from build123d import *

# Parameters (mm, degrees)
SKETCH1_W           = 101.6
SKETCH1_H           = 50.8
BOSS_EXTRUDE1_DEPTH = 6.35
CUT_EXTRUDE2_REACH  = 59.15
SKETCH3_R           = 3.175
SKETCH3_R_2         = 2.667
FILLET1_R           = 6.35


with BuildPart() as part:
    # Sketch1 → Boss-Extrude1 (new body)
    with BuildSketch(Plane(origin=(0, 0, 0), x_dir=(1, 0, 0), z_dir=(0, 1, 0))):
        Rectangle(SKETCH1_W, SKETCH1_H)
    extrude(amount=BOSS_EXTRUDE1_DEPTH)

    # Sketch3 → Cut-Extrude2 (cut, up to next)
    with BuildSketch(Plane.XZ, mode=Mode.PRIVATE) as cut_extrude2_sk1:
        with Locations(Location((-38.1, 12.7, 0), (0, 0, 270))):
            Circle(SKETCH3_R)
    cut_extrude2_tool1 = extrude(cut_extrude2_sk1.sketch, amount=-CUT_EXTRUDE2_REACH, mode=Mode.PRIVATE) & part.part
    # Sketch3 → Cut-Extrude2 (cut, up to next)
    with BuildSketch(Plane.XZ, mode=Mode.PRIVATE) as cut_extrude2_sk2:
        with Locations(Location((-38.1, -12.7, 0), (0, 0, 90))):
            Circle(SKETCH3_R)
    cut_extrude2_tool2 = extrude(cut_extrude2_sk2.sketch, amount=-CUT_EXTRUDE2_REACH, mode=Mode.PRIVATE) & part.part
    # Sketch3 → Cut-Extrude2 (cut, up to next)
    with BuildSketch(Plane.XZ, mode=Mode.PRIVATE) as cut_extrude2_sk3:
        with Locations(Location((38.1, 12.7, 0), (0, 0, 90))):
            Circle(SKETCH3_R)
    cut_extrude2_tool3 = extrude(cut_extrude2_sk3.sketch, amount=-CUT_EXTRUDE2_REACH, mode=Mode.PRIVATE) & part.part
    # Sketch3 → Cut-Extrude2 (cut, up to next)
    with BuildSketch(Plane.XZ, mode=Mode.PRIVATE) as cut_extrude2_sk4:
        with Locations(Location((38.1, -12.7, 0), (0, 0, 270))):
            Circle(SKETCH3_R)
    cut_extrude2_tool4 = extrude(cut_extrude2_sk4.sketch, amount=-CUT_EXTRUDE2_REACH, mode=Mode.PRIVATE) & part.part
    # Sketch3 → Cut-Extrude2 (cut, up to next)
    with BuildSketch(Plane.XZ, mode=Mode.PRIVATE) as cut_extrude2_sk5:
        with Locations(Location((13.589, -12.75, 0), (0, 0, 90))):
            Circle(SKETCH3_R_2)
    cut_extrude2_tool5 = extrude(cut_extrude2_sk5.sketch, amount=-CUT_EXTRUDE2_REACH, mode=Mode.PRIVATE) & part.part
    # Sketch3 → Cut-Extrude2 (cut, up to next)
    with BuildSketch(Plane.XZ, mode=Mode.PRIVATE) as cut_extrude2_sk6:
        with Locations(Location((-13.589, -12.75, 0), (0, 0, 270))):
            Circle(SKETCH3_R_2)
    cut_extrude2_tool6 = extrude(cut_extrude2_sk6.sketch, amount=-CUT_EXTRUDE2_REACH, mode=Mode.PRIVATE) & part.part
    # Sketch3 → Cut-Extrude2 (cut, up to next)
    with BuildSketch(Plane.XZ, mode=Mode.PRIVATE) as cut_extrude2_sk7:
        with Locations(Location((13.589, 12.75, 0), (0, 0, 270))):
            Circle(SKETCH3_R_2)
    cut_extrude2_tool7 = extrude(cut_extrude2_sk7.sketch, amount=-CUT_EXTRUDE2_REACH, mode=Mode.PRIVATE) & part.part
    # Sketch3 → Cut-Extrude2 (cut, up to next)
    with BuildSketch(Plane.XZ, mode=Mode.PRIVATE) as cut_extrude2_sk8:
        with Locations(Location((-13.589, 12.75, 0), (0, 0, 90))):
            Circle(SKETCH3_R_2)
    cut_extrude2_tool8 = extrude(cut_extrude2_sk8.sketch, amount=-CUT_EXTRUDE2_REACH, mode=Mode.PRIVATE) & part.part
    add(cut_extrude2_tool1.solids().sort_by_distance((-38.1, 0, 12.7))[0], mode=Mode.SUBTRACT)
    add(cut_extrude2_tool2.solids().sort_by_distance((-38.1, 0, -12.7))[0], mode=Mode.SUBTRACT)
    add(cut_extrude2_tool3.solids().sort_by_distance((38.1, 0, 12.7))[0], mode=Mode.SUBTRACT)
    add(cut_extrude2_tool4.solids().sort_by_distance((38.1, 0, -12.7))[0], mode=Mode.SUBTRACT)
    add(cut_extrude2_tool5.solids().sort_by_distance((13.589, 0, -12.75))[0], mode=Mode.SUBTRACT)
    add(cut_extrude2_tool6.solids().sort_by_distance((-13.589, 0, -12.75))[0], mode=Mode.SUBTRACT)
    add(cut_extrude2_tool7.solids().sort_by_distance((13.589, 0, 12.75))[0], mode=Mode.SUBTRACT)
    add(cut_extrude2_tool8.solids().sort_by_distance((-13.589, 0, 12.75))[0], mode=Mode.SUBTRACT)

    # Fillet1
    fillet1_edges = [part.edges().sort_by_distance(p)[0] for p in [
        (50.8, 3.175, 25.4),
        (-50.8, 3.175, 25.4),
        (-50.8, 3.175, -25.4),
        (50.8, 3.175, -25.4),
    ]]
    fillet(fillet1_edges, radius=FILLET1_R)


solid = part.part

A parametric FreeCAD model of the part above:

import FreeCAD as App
import Part
import Sketcher
from FreeCAD import Vector
Q = App.Units.Quantity


def edges_at(feature, points):
    """Names of the edges that pass closest to the given points."""
    edges = feature.Shape.Edges
    near = lambda p: min(range(len(edges)), key=lambda i: edges[i].distToShape(Part.Vertex(*p))[0])
    return sorted({f"Edge{near(p) + 1}" for p in points})


def add_polygon(sketch, points):
    """Adds a closed chain of lines whose ends are joined by coincident constraints."""
    first, n = sketch.GeometryCount, len(points)
    for a, b in zip(points, points[1:] + points[:1]):
        sketch.addGeometry(Part.LineSegment(App.Vector(*a, 0), App.Vector(*b, 0)), False)
    for i in range(n):
        sketch.addConstraint(Sketcher.Constraint("Coincident", first + i, 2, first + (i + 1) % n, 1))

doc = App.newDocument("Part")
body = doc.addObject("PartDesign::Body", "Body")

# Sketch on XZ plane
sketch1 = body.newObject("Sketcher::SketchObject", "Sketch")
sketch1.AttachmentSupport = (doc.getObject("XZ_Plane"), [""])
sketch1.MapMode = "FlatFace"
add_polygon(sketch1, [(-51, -25), (-51, 25), (51, 25), (51, -25)])  # lines 0-3
sketch1.addConstraint(Sketcher.Constraint("Vertical", 0))
sketch1.addConstraint(Sketcher.Constraint("Horizontal", 1))
sketch1.addConstraint(Sketcher.Constraint("Vertical", 2))
sketch1.addConstraint(Sketcher.Constraint("Horizontal", 3))
sketch1.addConstraint(Sketcher.Constraint("Symmetric", 0, 2, 2, 2, -1, 1))
sketch1.addConstraint(Sketcher.Constraint("DistanceX", 1, 1, 1, 2, Q("4 in")))
sketch1.addConstraint(Sketcher.Constraint("DistanceY", 0, 1, 0, 2, Q("2 in")))
pad1 = body.newObject("PartDesign::Pad", "Pad")
pad1.Profile = sketch1
pad1.Length = Q("0.25 in")
pad1.Reversed = True

# Sketch on XZ plane
sketch2 = body.newObject("Sketcher::SketchObject", "Sketch001")
sketch2.AttachmentSupport = (doc.getObject("XZ_Plane"), [""])
sketch2.MapMode = "FlatFace"
sketch2.addGeometry(Part.Circle(Vector(-38.1, 12.7, 0), Vector(0, 0, 1), 3.2), False)
sketch2.addConstraint(Sketcher.Constraint("Diameter", 0, Q("0.25 in")))
sketch2.addConstraint(Sketcher.Constraint("DistanceX", 0, 3, -1, 1, Q("1.5 in")))
sketch2.addConstraint(Sketcher.Constraint("DistanceY", -1, 1, 0, 3, Q("0.5 in")))
pocket1 = body.newObject("PartDesign::Pocket", "Pocket")
pocket1.Profile = sketch2
pocket1.Type = "UpToFirst"

# Sketch on XZ plane
sketch3 = body.newObject("Sketcher::SketchObject", "Sketch002")
sketch3.AttachmentSupport = (doc.getObject("XZ_Plane"), [""])
sketch3.MapMode = "FlatFace"
sketch3.addGeometry(Part.Circle(Vector(-38.1, -12.7, 0), Vector(0, 0, 1), 3.2), False)
sketch3.addConstraint(Sketcher.Constraint("Diameter", 0, Q("0.25 in")))
sketch3.addConstraint(Sketcher.Constraint("DistanceX", 0, 3, -1, 1, Q("1.5 in")))
sketch3.addConstraint(Sketcher.Constraint("DistanceY", 0, 3, -1, 1, Q("0.5 in")))
pocket2 = body.newObject("PartDesign::Pocket", "Pocket001")
pocket2.Profile = sketch3
pocket2.Type = "UpToFirst"

# Sketch on XZ plane
sketch4 = body.newObject("Sketcher::SketchObject", "Sketch003")
sketch4.AttachmentSupport = (doc.getObject("XZ_Plane"), [""])
sketch4.MapMode = "FlatFace"
sketch4.addGeometry(Part.Circle(Vector(38.1, 12.7, 0), Vector(0, 0, 1), 3.2), False)
sketch4.addConstraint(Sketcher.Constraint("Diameter", 0, Q("0.25 in")))
sketch4.addConstraint(Sketcher.Constraint("DistanceX", -1, 1, 0, 3, Q("1.5 in")))
sketch4.addConstraint(Sketcher.Constraint("DistanceY", -1, 1, 0, 3, Q("0.5 in")))
pocket3 = body.newObject("PartDesign::Pocket", "Pocket002")
pocket3.Profile = sketch4
pocket3.Type = "UpToFirst"

# Sketch on XZ plane
sketch5 = body.newObject("Sketcher::SketchObject", "Sketch004")
sketch5.AttachmentSupport = (doc.getObject("XZ_Plane"), [""])
sketch5.MapMode = "FlatFace"
sketch5.addGeometry(Part.Circle(Vector(38.1, -12.7, 0), Vector(0, 0, 1), 3.2), False)
sketch5.addConstraint(Sketcher.Constraint("Diameter", 0, Q("0.25 in")))
sketch5.addConstraint(Sketcher.Constraint("DistanceX", -1, 1, 0, 3, Q("1.5 in")))
sketch5.addConstraint(Sketcher.Constraint("DistanceY", 0, 3, -1, 1, Q("0.5 in")))
pocket4 = body.newObject("PartDesign::Pocket", "Pocket003")
pocket4.Profile = sketch5
pocket4.Type = "UpToFirst"

# Sketch on XZ plane
sketch6 = body.newObject("Sketcher::SketchObject", "Sketch005")
sketch6.AttachmentSupport = (doc.getObject("XZ_Plane"), [""])
sketch6.MapMode = "FlatFace"
sketch6.addGeometry(Part.Circle(Vector(13.6, -12.8, 0), Vector(0, 0, 1), 2.7), False)
sketch6.addConstraint(Sketcher.Constraint("Diameter", 0, Q("0.21 in")))
sketch6.addConstraint(Sketcher.Constraint("DistanceX", -1, 1, 0, 3, Q("0.535 in")))
sketch6.addConstraint(Sketcher.Constraint("DistanceY", 0, 3, -1, 1, Q("12.75 mm")))
pocket5 = body.newObject("PartDesign::Pocket", "Pocket004")
pocket5.Profile = sketch6
pocket5.Type = "UpToFirst"

# Sketch on XZ plane
sketch7 = body.newObject("Sketcher::SketchObject", "Sketch006")
sketch7.AttachmentSupport = (doc.getObject("XZ_Plane"), [""])
sketch7.MapMode = "FlatFace"
sketch7.addGeometry(Part.Circle(Vector(-13.6, -12.8, 0), Vector(0, 0, 1), 2.7), False)
sketch7.addConstraint(Sketcher.Constraint("Diameter", 0, Q("0.21 in")))
sketch7.addConstraint(Sketcher.Constraint("DistanceX", 0, 3, -1, 1, Q("0.535 in")))
sketch7.addConstraint(Sketcher.Constraint("DistanceY", 0, 3, -1, 1, Q("12.75 mm")))
pocket6 = body.newObject("PartDesign::Pocket", "Pocket005")
pocket6.Profile = sketch7
pocket6.Type = "UpToFirst"

# Sketch on XZ plane
sketch8 = body.newObject("Sketcher::SketchObject", "Sketch007")
sketch8.AttachmentSupport = (doc.getObject("XZ_Plane"), [""])
sketch8.MapMode = "FlatFace"
sketch8.addGeometry(Part.Circle(Vector(13.6, 12.8, 0), Vector(0, 0, 1), 2.7), False)
sketch8.addConstraint(Sketcher.Constraint("Diameter", 0, Q("0.21 in")))
sketch8.addConstraint(Sketcher.Constraint("DistanceX", -1, 1, 0, 3, Q("0.535 in")))
sketch8.addConstraint(Sketcher.Constraint("DistanceY", -1, 1, 0, 3, Q("12.75 mm")))
pocket7 = body.newObject("PartDesign::Pocket", "Pocket006")
pocket7.Profile = sketch8
pocket7.Type = "UpToFirst"

# Sketch on XZ plane
sketch9 = body.newObject("Sketcher::SketchObject", "Sketch008")
sketch9.AttachmentSupport = (doc.getObject("XZ_Plane"), [""])
sketch9.MapMode = "FlatFace"
sketch9.addGeometry(Part.Circle(Vector(-13.6, 12.8, 0), Vector(0, 0, 1), 2.7), False)
sketch9.addConstraint(Sketcher.Constraint("Diameter", 0, Q("0.21 in")))
sketch9.addConstraint(Sketcher.Constraint("DistanceX", 0, 3, -1, 1, Q("0.535 in")))
sketch9.addConstraint(Sketcher.Constraint("DistanceY", -1, 1, 0, 3, Q("12.75 mm")))
pocket8 = body.newObject("PartDesign::Pocket", "Pocket007")
pocket8.Profile = sketch9
pocket8.Type = "UpToFirst"
doc.recompute()

fillet = body.newObject("PartDesign::Fillet", "Fillet")
fillet.Base = (pocket8, edges_at(pocket8, [
    (50.8, 3.175, 25.4),
    (-50.8, 3.175, 25.4),
    (-50.8, 3.175, -25.4),
    (50.8, 3.175, -25.4),
]))
fillet.Radius = Q("0.25 in")

doc.recompute()
